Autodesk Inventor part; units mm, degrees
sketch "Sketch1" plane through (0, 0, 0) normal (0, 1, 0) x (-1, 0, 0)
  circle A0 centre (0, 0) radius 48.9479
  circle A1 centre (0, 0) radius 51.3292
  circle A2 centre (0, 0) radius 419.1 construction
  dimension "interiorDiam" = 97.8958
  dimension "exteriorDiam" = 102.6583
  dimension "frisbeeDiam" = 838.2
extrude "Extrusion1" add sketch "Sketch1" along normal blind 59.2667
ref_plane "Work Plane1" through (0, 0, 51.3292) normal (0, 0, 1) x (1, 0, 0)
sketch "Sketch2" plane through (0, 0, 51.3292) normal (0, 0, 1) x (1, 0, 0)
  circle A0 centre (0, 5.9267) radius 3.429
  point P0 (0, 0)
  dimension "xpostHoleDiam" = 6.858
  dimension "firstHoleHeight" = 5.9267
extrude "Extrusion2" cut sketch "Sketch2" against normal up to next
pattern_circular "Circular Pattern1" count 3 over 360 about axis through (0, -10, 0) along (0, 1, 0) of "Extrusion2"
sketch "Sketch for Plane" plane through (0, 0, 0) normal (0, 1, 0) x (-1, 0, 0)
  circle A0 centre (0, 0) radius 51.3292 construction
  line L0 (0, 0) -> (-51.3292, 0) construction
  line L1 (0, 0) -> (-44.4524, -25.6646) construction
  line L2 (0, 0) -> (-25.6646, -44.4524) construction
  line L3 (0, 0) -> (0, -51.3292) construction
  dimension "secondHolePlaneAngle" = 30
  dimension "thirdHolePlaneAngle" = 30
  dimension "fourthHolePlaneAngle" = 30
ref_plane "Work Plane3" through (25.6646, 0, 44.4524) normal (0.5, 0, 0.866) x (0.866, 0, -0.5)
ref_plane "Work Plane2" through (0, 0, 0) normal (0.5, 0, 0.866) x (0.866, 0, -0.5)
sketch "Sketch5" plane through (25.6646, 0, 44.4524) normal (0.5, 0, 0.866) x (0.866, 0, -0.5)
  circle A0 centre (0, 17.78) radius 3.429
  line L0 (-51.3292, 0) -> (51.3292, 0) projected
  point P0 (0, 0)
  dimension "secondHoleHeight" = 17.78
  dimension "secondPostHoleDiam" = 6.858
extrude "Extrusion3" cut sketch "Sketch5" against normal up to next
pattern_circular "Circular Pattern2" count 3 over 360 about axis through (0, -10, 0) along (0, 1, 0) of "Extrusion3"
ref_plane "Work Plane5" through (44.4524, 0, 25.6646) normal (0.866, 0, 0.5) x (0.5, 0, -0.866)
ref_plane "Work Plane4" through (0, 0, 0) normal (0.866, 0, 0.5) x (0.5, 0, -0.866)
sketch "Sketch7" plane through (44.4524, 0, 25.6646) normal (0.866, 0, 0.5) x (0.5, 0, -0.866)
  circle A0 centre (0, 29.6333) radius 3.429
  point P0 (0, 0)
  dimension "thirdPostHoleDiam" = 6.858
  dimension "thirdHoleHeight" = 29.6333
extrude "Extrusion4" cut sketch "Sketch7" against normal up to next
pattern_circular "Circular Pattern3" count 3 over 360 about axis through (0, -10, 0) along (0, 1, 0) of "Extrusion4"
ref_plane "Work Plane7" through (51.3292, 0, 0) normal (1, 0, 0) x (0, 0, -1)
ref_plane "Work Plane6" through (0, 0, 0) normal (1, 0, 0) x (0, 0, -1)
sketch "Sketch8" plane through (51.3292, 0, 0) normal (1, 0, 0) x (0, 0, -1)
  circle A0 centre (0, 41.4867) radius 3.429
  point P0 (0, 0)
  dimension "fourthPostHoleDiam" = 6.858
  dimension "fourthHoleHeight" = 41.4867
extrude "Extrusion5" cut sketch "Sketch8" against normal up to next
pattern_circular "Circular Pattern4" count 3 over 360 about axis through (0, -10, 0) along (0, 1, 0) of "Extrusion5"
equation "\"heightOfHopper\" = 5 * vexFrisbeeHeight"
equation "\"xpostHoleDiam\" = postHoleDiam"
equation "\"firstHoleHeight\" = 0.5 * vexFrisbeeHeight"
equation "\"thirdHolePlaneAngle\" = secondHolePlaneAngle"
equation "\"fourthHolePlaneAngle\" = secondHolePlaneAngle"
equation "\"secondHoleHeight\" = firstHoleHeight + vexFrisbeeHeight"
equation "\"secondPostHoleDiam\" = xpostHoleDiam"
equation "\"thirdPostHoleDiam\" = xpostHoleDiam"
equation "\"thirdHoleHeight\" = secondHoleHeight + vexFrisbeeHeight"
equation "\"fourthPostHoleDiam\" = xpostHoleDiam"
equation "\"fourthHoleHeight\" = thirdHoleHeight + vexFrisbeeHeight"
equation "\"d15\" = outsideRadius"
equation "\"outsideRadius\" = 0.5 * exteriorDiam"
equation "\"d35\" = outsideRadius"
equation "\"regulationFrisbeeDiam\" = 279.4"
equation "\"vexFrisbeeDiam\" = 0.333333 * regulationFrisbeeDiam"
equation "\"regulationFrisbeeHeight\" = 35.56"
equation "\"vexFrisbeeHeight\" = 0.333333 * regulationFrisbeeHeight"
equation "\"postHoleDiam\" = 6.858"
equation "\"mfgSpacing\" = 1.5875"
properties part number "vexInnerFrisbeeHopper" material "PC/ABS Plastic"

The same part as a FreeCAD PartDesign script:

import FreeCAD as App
import Part
import Sketcher
Q = App.Units.Quantity

doc = App.newDocument("Part")
body = doc.addObject("PartDesign::Body", "Body")

sketch1 = body.newObject("Sketcher::SketchObject", "Sketch")
sketch1.AttachmentSupport = (doc.getObject("XZ_Plane"), [""])
sketch1.MapMode = "FlatFace"
sketch1.addGeometry([
    Part.Circle(App.Vector(0, 0, 0), App.Vector(0, 0, 1), 51),
    Part.Circle(App.Vector(0, 0, 0), App.Vector(0, 0, 1), 49),
], False)
sketch1.addConstraint([
    Sketcher.Constraint("Coincident", 0, 3, -1, 1),
    Sketcher.Constraint("Coincident", 1, 3, -1, 1),
    Sketcher.Constraint("Diameter", 0, 102.6584),
    Sketcher.Constraint("Diameter", 1, 97.8958),
])
pad1 = body.newObject("PartDesign::Pad", "Pad")
pad1.Profile = sketch1
pad1.Length = 59.2667
pad1.Reversed = True

sketch2 = body.newObject("Sketcher::SketchObject", "Sketch001")
sketch2.AttachmentSupport = (doc.getObject("XY_Plane"), [""])
sketch2.MapMode = "FlatFace"
sketch2.AttachmentOffset = App.Placement(App.Vector(0, 0, 51.3292), App.Rotation())
sketch2.addGeometry(Part.Circle(App.Vector(0, 5.9, 0), App.Vector(0, 0, 1), 3.4), False)
sketch2.addConstraint([
    Sketcher.Constraint("PointOnObject", 0, 3, -2),
    Sketcher.Constraint("Diameter", 0, Q("0.27 in")),
    Sketcher.Constraint("DistanceY", -1, 1, 0, 3, 5.9267),
])
pocket1 = body.newObject("PartDesign::Pocket", "Pocket")
pocket1.Profile = sketch2
pocket1.Type = "UpToFirst"
doc.recompute()

polarpattern = body.newObject("PartDesign::PolarPattern", "PolarPattern")
polarpattern.Originals = [pocket1]
polarpattern.Axis = (doc.getObject("Y_Axis"), [""])
polarpattern.Angle = 360
polarpattern.Occurrences = 3
body.Tip = polarpattern

sketch3 = body.newObject("Sketcher::SketchObject", "Sketch002")
sketch3.Placement = App.Placement(App.Vector(25.6646, 0, 44.4524), App.Rotation(App.Vector(0.866025404, 0, -0.5), App.Vector(0, 1, 0), App.Vector(0.5, 0, 0.866025404), "ZXY"))
sketch3.addGeometry(Part.Circle(App.Vector(0, 17.8, 0), App.Vector(0, 0, 1), 3.4), False)
sketch3.addConstraint([
    Sketcher.Constraint("PointOnObject", 0, 3, -2),
    Sketcher.Constraint("Diameter", 0, Q("0.27 in")),
    Sketcher.Constraint("DistanceY", -1, 1, 0, 3, Q("0.7 in")),
])
pocket2 = body.newObject("PartDesign::Pocket", "Pocket001")
pocket2.Profile = sketch3
pocket2.Length = Q("0.0984882 in")
doc.recompute()

polarpattern2 = body.newObject("PartDesign::PolarPattern", "PolarPattern001")
polarpattern2.Originals = [pocket2]
polarpattern2.Axis = (doc.getObject("Y_Axis"), [""])
polarpattern2.Angle = 360
polarpattern2.Occurrences = 3
body.Tip = polarpattern2

sketch4 = body.newObject("Sketcher::SketchObject", "Sketch003")
sketch4.Placement = App.Placement(App.Vector(44.4524, 0, 25.6646), App.Rotation(App.Vector(0.5, 0, -0.866025404), App.Vector(0, 1, 0), App.Vector(0.866025404, 0, 0.5), "ZXY"))
sketch4.addGeometry(Part.Circle(App.Vector(0, 29.6, 0), App.Vector(0, 0, 1), 3.4), False)
sketch4.addConstraint([
    Sketcher.Constraint("PointOnObject", 0, 3, -2),
    Sketcher.Constraint("Diameter", 0, Q("0.27 in")),
    Sketcher.Constraint("DistanceY", -1, 1, 0, 3, 29.6333),
])
pocket3 = body.newObject("PartDesign::Pocket", "Pocket002")
pocket3.Profile = sketch4
pocket3.Length = Q("0.0984882 in")
doc.recompute()

polarpattern3 = body.newObject("PartDesign::PolarPattern", "PolarPattern002")
polarpattern3.Originals = [pocket3]
polarpattern3.Axis = (doc.getObject("Y_Axis"), [""])
polarpattern3.Angle = 360
polarpattern3.Occurrences = 3
body.Tip = polarpattern3

sketch5 = body.newObject("Sketcher::SketchObject", "Sketch004")
sketch5.AttachmentSupport = (doc.getObject("YZ_Plane"), [""])
sketch5.MapMode = "FlatFace"
sketch5.AttachmentOffset = App.Placement(App.Vector(0, 0, 51.3292), App.Rotation())
sketch5.addGeometry(Part.Circle(App.Vector(41.5, 0, 0), App.Vector(0, 0, 1), 3.4), False)
sketch5.addConstraint([
    Sketcher.Constraint("PointOnObject", 0, 3, -1),
    Sketcher.Constraint("Diameter", 0, Q("0.27 in")),
    Sketcher.Constraint("DistanceX", -1, 1, 0, 3, 41.4867),
])
pocket4 = body.newObject("PartDesign::Pocket", "Pocket003")
pocket4.Profile = sketch5
pocket4.Length = Q("0.0984882 in")
doc.recompute()

polarpattern4 = body.newObject("PartDesign::PolarPattern", "PolarPattern003")
polarpattern4.Originals = [pocket4]
polarpattern4.Axis = (doc.getObject("Y_Axis"), [""])
polarpattern4.Angle = 360
polarpattern4.Occurrences = 3
body.Tip = polarpattern4

doc.recompute()
